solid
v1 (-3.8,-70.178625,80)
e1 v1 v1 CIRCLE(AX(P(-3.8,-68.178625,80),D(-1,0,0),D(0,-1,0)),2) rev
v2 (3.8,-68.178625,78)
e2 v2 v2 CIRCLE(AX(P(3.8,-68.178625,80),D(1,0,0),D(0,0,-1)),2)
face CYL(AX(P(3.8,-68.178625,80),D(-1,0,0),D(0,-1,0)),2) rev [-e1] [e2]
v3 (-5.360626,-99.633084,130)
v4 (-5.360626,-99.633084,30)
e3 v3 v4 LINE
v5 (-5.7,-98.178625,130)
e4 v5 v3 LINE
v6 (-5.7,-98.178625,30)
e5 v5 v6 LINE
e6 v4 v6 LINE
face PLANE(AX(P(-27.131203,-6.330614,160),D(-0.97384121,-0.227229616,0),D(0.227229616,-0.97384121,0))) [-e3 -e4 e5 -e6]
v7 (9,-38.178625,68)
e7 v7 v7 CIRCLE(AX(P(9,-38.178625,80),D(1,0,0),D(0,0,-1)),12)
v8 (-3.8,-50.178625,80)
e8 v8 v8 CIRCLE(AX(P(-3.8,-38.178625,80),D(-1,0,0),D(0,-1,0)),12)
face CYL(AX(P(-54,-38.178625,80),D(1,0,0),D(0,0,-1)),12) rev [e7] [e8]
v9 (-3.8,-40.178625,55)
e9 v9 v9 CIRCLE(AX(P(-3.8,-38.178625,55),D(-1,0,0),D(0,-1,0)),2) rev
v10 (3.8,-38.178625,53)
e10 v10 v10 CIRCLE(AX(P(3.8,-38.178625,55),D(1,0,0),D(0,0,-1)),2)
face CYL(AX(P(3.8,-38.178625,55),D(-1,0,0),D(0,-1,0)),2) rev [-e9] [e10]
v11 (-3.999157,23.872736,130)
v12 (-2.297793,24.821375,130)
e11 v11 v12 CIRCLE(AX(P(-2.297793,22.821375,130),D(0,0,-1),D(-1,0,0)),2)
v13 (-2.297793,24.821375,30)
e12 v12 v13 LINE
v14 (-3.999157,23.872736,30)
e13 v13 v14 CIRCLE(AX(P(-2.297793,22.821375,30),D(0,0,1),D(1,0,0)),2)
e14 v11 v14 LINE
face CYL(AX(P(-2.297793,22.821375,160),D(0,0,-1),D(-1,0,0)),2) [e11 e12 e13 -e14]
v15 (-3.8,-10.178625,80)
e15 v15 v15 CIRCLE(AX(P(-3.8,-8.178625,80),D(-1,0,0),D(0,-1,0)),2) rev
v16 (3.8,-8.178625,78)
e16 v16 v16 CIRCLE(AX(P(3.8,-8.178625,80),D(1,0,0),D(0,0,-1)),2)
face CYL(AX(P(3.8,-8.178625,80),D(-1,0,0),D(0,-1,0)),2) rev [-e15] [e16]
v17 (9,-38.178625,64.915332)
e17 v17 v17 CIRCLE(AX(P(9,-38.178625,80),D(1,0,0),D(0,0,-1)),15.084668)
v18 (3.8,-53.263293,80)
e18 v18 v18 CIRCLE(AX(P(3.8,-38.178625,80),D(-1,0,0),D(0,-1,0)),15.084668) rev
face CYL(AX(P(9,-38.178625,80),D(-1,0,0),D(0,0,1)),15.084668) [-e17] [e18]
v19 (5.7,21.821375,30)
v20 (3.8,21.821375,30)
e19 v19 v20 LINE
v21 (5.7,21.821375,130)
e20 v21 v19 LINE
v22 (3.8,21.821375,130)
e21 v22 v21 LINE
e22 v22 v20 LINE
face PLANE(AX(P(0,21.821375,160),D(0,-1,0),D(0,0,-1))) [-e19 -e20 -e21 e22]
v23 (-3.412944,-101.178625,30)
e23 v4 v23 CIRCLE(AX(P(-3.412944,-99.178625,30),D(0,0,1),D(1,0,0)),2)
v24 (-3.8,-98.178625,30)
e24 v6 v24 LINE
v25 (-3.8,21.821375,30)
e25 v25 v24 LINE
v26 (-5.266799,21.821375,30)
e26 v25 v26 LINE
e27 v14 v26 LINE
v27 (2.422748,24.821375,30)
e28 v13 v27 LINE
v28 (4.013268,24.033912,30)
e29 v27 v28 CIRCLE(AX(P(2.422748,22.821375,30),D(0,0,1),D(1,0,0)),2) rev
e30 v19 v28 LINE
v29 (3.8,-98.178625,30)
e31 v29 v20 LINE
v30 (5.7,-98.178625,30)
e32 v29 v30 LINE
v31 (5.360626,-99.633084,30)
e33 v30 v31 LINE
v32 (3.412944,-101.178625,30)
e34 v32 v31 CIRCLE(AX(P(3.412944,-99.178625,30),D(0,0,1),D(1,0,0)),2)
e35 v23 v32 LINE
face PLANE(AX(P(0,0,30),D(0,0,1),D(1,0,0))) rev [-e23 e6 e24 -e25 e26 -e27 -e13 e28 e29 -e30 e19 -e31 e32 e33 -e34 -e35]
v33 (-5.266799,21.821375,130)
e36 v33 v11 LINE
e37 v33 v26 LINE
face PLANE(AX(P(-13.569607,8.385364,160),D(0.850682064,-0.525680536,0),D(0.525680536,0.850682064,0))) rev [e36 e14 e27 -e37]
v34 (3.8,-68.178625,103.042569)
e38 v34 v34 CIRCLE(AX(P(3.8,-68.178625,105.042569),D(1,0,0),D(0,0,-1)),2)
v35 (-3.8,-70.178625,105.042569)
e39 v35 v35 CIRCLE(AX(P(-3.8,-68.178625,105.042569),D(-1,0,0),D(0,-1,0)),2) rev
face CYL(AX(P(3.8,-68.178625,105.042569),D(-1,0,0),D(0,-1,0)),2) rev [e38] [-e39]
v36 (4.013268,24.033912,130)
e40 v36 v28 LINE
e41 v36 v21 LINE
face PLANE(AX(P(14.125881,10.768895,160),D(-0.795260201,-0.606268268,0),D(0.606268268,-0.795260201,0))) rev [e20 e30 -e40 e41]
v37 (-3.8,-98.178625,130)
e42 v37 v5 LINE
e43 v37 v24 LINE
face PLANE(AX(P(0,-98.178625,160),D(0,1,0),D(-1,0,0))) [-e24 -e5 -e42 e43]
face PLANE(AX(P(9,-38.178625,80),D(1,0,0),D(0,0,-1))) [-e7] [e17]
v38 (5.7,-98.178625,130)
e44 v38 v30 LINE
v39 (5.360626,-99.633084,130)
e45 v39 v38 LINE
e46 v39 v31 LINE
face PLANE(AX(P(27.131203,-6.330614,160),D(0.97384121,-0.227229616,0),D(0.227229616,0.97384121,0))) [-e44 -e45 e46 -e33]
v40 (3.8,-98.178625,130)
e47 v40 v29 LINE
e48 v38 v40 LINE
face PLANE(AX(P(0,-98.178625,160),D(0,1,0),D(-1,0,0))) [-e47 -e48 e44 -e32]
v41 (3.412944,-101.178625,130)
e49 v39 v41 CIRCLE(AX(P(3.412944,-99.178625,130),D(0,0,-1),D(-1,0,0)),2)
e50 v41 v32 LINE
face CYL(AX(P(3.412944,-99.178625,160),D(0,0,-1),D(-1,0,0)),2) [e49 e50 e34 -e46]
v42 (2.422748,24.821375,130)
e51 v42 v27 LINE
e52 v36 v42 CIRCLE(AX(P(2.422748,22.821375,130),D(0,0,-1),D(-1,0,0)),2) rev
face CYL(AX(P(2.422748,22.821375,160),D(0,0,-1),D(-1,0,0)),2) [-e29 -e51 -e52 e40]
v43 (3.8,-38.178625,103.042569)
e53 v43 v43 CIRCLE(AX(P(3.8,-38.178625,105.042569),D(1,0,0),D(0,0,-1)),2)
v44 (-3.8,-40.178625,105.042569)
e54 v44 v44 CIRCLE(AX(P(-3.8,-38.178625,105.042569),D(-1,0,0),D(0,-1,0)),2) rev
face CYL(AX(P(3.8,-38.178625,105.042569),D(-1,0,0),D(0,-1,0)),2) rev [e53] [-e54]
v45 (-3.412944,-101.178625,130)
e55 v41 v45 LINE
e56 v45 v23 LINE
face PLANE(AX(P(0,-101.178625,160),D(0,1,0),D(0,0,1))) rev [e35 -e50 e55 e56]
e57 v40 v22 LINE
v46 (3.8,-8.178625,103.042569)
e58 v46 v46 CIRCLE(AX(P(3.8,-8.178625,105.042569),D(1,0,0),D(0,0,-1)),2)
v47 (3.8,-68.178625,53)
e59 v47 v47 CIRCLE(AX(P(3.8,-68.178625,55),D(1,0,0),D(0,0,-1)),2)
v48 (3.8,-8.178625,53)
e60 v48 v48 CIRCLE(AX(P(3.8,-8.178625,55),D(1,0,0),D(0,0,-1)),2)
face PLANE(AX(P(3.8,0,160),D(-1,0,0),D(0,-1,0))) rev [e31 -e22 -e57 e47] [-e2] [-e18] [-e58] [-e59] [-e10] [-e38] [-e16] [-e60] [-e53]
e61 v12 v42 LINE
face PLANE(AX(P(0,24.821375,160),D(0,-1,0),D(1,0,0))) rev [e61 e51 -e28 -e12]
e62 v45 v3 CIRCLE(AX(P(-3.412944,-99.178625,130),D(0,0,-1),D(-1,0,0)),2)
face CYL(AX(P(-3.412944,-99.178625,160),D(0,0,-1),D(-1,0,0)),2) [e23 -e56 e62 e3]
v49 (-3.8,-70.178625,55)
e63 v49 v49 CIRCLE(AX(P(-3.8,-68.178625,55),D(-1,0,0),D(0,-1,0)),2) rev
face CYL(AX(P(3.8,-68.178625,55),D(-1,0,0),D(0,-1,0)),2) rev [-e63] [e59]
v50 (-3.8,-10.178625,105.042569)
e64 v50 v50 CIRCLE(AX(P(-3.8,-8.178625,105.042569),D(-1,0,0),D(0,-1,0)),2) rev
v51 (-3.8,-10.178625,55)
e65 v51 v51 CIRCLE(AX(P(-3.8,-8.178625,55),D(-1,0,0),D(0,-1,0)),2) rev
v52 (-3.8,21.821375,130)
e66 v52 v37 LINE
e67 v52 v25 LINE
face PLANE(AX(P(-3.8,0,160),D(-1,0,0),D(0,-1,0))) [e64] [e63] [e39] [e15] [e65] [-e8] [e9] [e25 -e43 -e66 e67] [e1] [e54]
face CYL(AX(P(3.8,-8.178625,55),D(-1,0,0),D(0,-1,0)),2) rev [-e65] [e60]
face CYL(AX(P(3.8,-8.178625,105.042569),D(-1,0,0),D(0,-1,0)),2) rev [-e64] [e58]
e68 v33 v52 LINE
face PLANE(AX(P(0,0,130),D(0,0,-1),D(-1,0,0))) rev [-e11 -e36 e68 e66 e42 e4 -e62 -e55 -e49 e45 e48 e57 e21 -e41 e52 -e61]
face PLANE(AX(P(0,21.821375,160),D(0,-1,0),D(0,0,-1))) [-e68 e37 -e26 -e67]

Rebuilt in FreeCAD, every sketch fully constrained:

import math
import FreeCAD as App
import Part
import Sketcher
from FreeCAD import Vector
Q = App.Units.Quantity


def add_polygon(sketch, points):
    """Adds a closed chain of lines whose ends are joined by coincident constraints."""
    first, n = sketch.GeometryCount, len(points)
    for a, b in zip(points, points[1:] + points[:1]):
        sketch.addGeometry(Part.LineSegment(App.Vector(*a, 0), App.Vector(*b, 0)), False)
    for i in range(n):
        sketch.addConstraint(Sketcher.Constraint("Coincident", first + i, 2, first + (i + 1) % n, 1))

doc = App.newDocument("Part")
body = doc.addObject("PartDesign::Body", "Body")

# Sketch on XY plane
sketch1 = body.newObject("Sketcher::SketchObject", "Sketch")
sketch1.AttachmentSupport = (doc.getObject("XY_Plane"), [""])
sketch1.MapMode = "FlatFace"
sketch1.addGeometry([
    Part.LineSegment(Vector(-3.8, 21.8, 0), Vector(-3.8, -98.2, 0)),  # 0
    Part.LineSegment(Vector(-3.8, -98.2, 0), Vector(-5.7, -98.2, 0)),  # 1
    Part.LineSegment(Vector(-5.7, -98.2, 0), Vector(-5.4, -99.6, 0)),  # 2
    Part.ArcOfCircle(Part.Circle(Vector(-3.4, -99.2, 0), Vector(0, 0, 1), 2), math.radians(-167), math.radians(-90)),  # 3
    Part.LineSegment(Vector(-3.4, -101.2, 0), Vector(3.4, -101.2, 0)),  # 4
    Part.ArcOfCircle(Part.Circle(Vector(3.4, -99.2, 0), Vector(0, 0, 1), 2), math.radians(-90), math.radians(-13)),  # 5
    Part.LineSegment(Vector(5.4, -99.6, 0), Vector(5.7, -98.2, 0)),  # 6
    Part.LineSegment(Vector(5.7, -98.2, 0), Vector(3.8, -98.2, 0)),  # 7
    Part.LineSegment(Vector(3.8, -98.2, 0), Vector(3.8, 21.8, 0)),  # 8
    Part.LineSegment(Vector(3.8, 21.8, 0), Vector(5.7, 21.8, 0)),  # 9
    Part.LineSegment(Vector(5.7, 21.8, 0), Vector(4, 24, 0)),  # 10
    Part.ArcOfCircle(Part.Circle(Vector(2.4, 22.8, 0), Vector(0, 0, 1), 2), math.radians(37), math.radians(90)),  # 11
    Part.LineSegment(Vector(2.4, 24.8, 0), Vector(-2.3, 24.8, 0)),  # 12
    Part.ArcOfCircle(Part.Circle(Vector(-2.3, 22.8, 0), Vector(0, 0, 1), 2), math.radians(90), math.radians(148)),  # 13
    Part.LineSegment(Vector(-4, 23.9, 0), Vector(-5.3, 21.8, 0)),  # 14
    Part.LineSegment(Vector(-5.3, 21.8, 0), Vector(-3.8, 21.8, 0)),  # 15
], False)
sketch1.addConstraint([
    Sketcher.Constraint("Coincident", 0, 2, 1, 1),
    Sketcher.Constraint("Coincident", 1, 2, 2, 1),
    Sketcher.Constraint("Tangent", 2, 2, 3, 1),
    Sketcher.Constraint("Tangent", 3, 2, 4, 1),
    Sketcher.Constraint("Tangent", 4, 2, 5, 1),
    Sketcher.Constraint("Tangent", 5, 2, 6, 1),
    Sketcher.Constraint("Coincident", 6, 2, 7, 1),
    Sketcher.Constraint("Coincident", 7, 2, 8, 1),
    Sketcher.Constraint("Coincident", 8, 2, 9, 1),
    Sketcher.Constraint("Coincident", 9, 2, 10, 1),
    Sketcher.Constraint("Tangent", 10, 2, 11, 1),
    Sketcher.Constraint("Tangent", 11, 2, 12, 1),
    Sketcher.Constraint("Tangent", 12, 2, 13, 1),
    Sketcher.Constraint("Tangent", 13, 2, 14, 1),
    Sketcher.Constraint("Coincident", 14, 2, 15, 1),
    Sketcher.Constraint("Coincident", 15, 2, 0, 1),
    Sketcher.Constraint("Vertical", 0),
    Sketcher.Constraint("Horizontal", 1),
    Sketcher.Constraint("Horizontal", 4),
    Sketcher.Constraint("Horizontal", 7),
    Sketcher.Constraint("Vertical", 8),
    Sketcher.Constraint("Horizontal", 9),
    Sketcher.Constraint("Horizontal", 12),
    Sketcher.Constraint("Horizontal", 15),
    Sketcher.Constraint("Equal", 3, 5),
    Sketcher.Constraint("Equal", 5, 11),
    Sketcher.Constraint("Equal", 11, 13),
    Sketcher.Constraint("Symmetric", 2, 2, 5, 2, -2),
    Sketcher.Constraint("Symmetric", 0, 2, 7, 2, -2),
    Sketcher.Constraint("Horizontal", 9, 2, 14, 2),
    Sketcher.Constraint("Vertical", 6, 2, 9, 2),
    Sketcher.Constraint("Radius", 3, Q("2 mm")),
    Sketcher.Constraint("DistanceY", 0, 2, 0, 1, Q("120 mm")),
    Sketcher.Constraint("DistanceX", 1, 2, 1, 1, Q("1.9 mm")),
    Sketcher.Constraint("DistanceY", 5, 3, 11, 3, Q("122 mm")),
    Sketcher.Constraint("DistanceY", 3, 3, 0, 2, Q("1 mm")),
    Sketcher.Constraint("DistanceX", 0, 2, -1, 1, Q("3.8 mm")),
    Sketcher.Constraint("DistanceX", 15, 1, 15, 2, Q("1.466799 mm")),
    Sketcher.Constraint("DistanceX", 12, 2, 12, 1, Q("4.720541 mm")),
    Sketcher.Constraint("Distance", 2, Q("1.493528 mm")),
    Sketcher.Constraint("Distance", 14, Q("2.411431 mm")),
    Sketcher.Constraint("DistanceY", -1, 1, 10, 2, Q("24.033912 mm")),
])
pad1 = body.newObject("PartDesign::Pad", "Pad")
pad1.Profile = sketch1
pad1.Length = 160

# Sketch on XY plane
sketch2 = body.newObject("Sketcher::SketchObject", "Sketch001")
sketch2.AttachmentSupport = (doc.getObject("XY_Plane"), [""])
sketch2.MapMode = "FlatFace"
add_polygon(sketch2, [(-4, 22), (-4, -98), (4, -98), (4, 22)])  # lines 0-3
sketch2.addConstraint([
    Sketcher.Constraint("Vertical", 0),
    Sketcher.Constraint("Horizontal", 1),
    Sketcher.Constraint("Vertical", 2),
    Sketcher.Constraint("Horizontal", 3),
    Sketcher.Constraint("DistanceY", 0, 2, 0, 1, Q("120 mm")),
    Sketcher.Constraint("DistanceX", 1, 1, 1, 2, Q("7.6 mm")),
    Sketcher.Constraint("DistanceX", 0, 2, -1, 1, Q("3.8 mm")),
    Sketcher.Constraint("DistanceY", 0, 2, -1, 1, Q("98.178625 mm")),
])
pocket1 = body.newObject("PartDesign::Pocket", "Pocket")
pocket1.Profile = sketch2
pocket1.Length = 30
pocket1.Reversed = True

# Sketch on XY plane
sketch3 = body.newObject("Sketcher::SketchObject", "Sketch002")
sketch3.AttachmentSupport = (doc.getObject("XY_Plane"), [""])
sketch3.MapMode = "FlatFace"
sketch3.AttachmentOffset = App.Placement(Vector(0, 0, 160), App.Rotation())
add_polygon(sketch3, [(-4, 22), (4, 22), (4, -98), (-4, -98)])  # lines 0-3
sketch3.addConstraint([
    Sketcher.Constraint("Horizontal", 0),
    Sketcher.Constraint("Vertical", 1),
    Sketcher.Constraint("Horizontal", 2),
    Sketcher.Constraint("Vertical", 3),
    Sketcher.Constraint("DistanceY", 1, 2, 1, 1, Q("120 mm")),
    Sketcher.Constraint("DistanceX", 0, 1, 0, 2, Q("7.6 mm")),
    Sketcher.Constraint("DistanceX", -1, 1, 0, 2, Q("3.8 mm")),
    Sketcher.Constraint("DistanceY", -1, 1, 0, 2, Q("21.821375 mm")),
])
pocket2 = body.newObject("PartDesign::Pocket", "Pocket001")
pocket2.Profile = sketch3
pocket2.Length = 30

# Sketch on YZ plane
sketch4 = body.newObject("Sketcher::SketchObject", "Sketch003")
sketch4.AttachmentSupport = (doc.getObject("YZ_Plane"), [""])
sketch4.MapMode = "FlatFace"
sketch4.AttachmentOffset = App.Placement(Vector(0, 0, 3.8), App.Rotation())
sketch4.addGeometry([
    Part.Circle(Vector(-38.2, 80, 0), Vector(0, 0, 1), 2),  # 0
    Part.Circle(Vector(-8.2, 80, 0), Vector(0, 0, 1), 2),  # 1
    Part.Circle(Vector(-68.2, 80, 0), Vector(0, 0, 1), 2),  # 2
    Part.Circle(Vector(-68.2, 55, 0), Vector(0, 0, 1), 2),  # 3
    Part.Circle(Vector(-38.2, 55, 0), Vector(0, 0, 1), 2),  # 4
    Part.Circle(Vector(-8.2, 55, 0), Vector(0, 0, 1), 2),  # 5
    Part.Circle(Vector(-68.2, 105, 0), Vector(0, 0, 1), 2),  # 6
    Part.Circle(Vector(-38.2, 105, 0), Vector(0, 0, 1), 2),  # 7
    Part.Circle(Vector(-8.2, 105, 0), Vector(0, 0, 1), 2),  # 8
], False)
sketch4.addConstraint([
    Sketcher.Constraint("Equal", 0, 1),
    Sketcher.Constraint("Equal", 1, 2),
    Sketcher.Constraint("Equal", 2, 3),
    Sketcher.Constraint("Equal", 3, 4),
    Sketcher.Constraint("Equal", 4, 5),
    Sketcher.Constraint("Equal", 5, 6),
    Sketcher.Constraint("Equal", 6, 7),
    Sketcher.Constraint("Equal", 7, 8),
    Sketcher.Constraint("Horizontal", 0, 3, 1, 3),
    Sketcher.Constraint("Horizontal", 1, 3, 2, 3),
    Sketcher.Constraint("Horizontal", 3, 3, 4, 3),
    Sketcher.Constraint("Horizontal", 4, 3, 5, 3),
    Sketcher.Constraint("Horizontal", 6, 3, 7, 3),
    Sketcher.Constraint("Horizontal", 7, 3, 8, 3),
    Sketcher.Constraint("Vertical", 2, 3, 3, 3),
    Sketcher.Constraint("Vertical", 0, 3, 4, 3),
    Sketcher.Constraint("Vertical", 1, 3, 5, 3),
    Sketcher.Constraint("Vertical", 3, 3, 6, 3),
    Sketcher.Constraint("Vertical", 4, 3, 7, 3),
    Sketcher.Constraint("Vertical", 5, 3, 8, 3),
    Sketcher.Constraint("Diameter", 0, Q("4 mm")),
    Sketcher.Constraint("DistanceY", -1, 1, 0, 3, Q("80 mm")),
    Sketcher.Constraint("DistanceY", -1, 1, 3, 3, Q("55 mm")),
    Sketcher.Constraint("DistanceX", 0, 3, 1, 3, Q("30 mm")),
    Sketcher.Constraint("DistanceX", 2, 3, 0, 3, Q("30 mm")),
    Sketcher.Constraint("DistanceY", -1, 1, 6, 3, Q("105.042569 mm")),
    Sketcher.Constraint("DistanceX", 0, 3, -1, 1, Q("38.178625 mm")),
])
pocket3 = body.newObject("PartDesign::Pocket", "Pocket002")
pocket3.Profile = sketch4
pocket3.Length = 70

# Sketch on YZ plane
sketch5 = body.newObject("Sketcher::SketchObject", "Sketch004")
sketch5.AttachmentSupport = (doc.getObject("YZ_Plane"), [""])
sketch5.MapMode = "FlatFace"
add_polygon(sketch5, [(25, 30), (-105, 30), (-105, -15), (25, -15)])  # lines 0-3
add_polygon(sketch5, [(25, 167), (-105, 167), (-105, 130), (25, 130)])  # lines 4-7
sketch5.addConstraint([
    Sketcher.Constraint("Horizontal", 0),
    Sketcher.Constraint("Vertical", 1),
    Sketcher.Constraint("Horizontal", 2),
    Sketcher.Constraint("Vertical", 3),
    Sketcher.Constraint("Horizontal", 4),
    Sketcher.Constraint("Vertical", 5),
    Sketcher.Constraint("Horizontal", 6),
    Sketcher.Constraint("Vertical", 7),
    Sketcher.Constraint("Vertical", 1, 2, 4, 2),
    Sketcher.Constraint("Vertical", 3, 2, 6, 2),
    Sketcher.Constraint("DistanceY", -1, 1, 0, 2, Q("30 mm")),
    Sketcher.Constraint("DistanceY", -1, 1, 5, 2, Q("130 mm")),
    Sketcher.Constraint("DistanceX", 0, 2, 0, 1, Q("129.478543 mm")),
    Sketcher.Constraint("DistanceY", 1, 2, 1, 1, Q("45.015345 mm")),
    Sketcher.Constraint("DistanceY", 5, 2, 5, 1, Q("37.192594 mm")),
    Sketcher.Constraint("DistanceX", 0, 2, -1, 1, Q("104.657168 mm")),
])
pocket4 = body.newObject("PartDesign::Pocket", "Pocket003")
pocket4.Profile = sketch5
pocket4.Type = "ThroughAll"
pocket4.Midplane = True

# Sketch on YZ plane
sketch6 = body.newObject("Sketcher::SketchObject", "Sketch005")
sketch6.AttachmentSupport = (doc.getObject("YZ_Plane"), [""])
sketch6.MapMode = "FlatFace"
sketch6.addGeometry(Part.Circle(Vector(-38, 80, 0), Vector(0, 0, 1), 12), False)
sketch6.addConstraint([
    Sketcher.Constraint("Diameter", 0, Q("24 mm")),
    Sketcher.Constraint("DistanceY", -1, 1, 0, 3, Q("80 mm")),
    Sketcher.Constraint("DistanceX", 0, 3, -1, 1, Q("38.178625 mm")),
])
pocket5 = body.newObject("PartDesign::Pocket", "Pocket004")
pocket5.Profile = sketch6
pocket5.Type = "ThroughAll"
pocket5.Midplane = True

# Sketch on YZ plane
sketch7 = body.newObject("Sketcher::SketchObject", "Sketch006")
sketch7.AttachmentSupport = (doc.getObject("YZ_Plane"), [""])
sketch7.MapMode = "FlatFace"
sketch7.addGeometry([
    Part.Circle(Vector(-38, 80, 0), Vector(0, 0, 1), 15),
    Part.Circle(Vector(-38, 80, 0), Vector(0, 0, 1), 12),
], False)
sketch7.addConstraint([
    Sketcher.Constraint("Coincident", 1, 3, 0, 3),
    Sketcher.Constraint("Diameter", 1, Q("24 mm")),
    Sketcher.Constraint("DistanceY", -1, 1, 0, 3, Q("80 mm")),
    Sketcher.Constraint("Diameter", 0, Q("30.169337 mm")),
    Sketcher.Constraint("DistanceX", 0, 3, -1, 1, Q("38.178625 mm")),
])
pad2 = body.newObject("PartDesign::Pad", "Pad001")
pad2.Profile = sketch7
pad2.Length = 9

doc.recompute()
